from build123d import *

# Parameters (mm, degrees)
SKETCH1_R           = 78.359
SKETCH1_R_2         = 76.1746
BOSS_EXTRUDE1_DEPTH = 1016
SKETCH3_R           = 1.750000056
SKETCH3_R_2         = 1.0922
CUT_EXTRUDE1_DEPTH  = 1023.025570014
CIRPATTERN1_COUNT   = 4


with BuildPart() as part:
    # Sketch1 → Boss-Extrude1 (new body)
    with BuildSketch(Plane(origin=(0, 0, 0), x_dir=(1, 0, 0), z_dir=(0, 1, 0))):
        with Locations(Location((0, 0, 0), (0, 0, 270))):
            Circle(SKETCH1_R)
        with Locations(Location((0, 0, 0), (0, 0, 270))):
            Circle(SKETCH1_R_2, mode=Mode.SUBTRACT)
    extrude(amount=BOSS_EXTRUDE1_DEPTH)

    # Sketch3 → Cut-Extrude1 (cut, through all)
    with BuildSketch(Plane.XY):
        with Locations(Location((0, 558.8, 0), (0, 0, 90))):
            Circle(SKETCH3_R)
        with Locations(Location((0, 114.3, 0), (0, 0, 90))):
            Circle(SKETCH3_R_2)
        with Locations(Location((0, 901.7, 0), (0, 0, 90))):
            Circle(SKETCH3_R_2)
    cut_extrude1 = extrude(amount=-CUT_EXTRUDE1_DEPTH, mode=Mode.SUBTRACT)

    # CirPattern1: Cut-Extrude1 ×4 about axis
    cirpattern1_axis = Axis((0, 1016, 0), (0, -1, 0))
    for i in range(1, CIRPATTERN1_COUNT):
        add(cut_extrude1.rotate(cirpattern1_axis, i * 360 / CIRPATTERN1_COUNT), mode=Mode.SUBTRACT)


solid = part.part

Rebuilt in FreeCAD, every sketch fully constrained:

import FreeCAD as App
import Part
import Sketcher
from FreeCAD import Vector
Q = App.Units.Quantity

doc = App.newDocument("Part")
body = doc.addObject("PartDesign::Body", "Body")

# Sketch on XZ plane
sketch1 = body.newObject("Sketcher::SketchObject", "Sketch")
sketch1.AttachmentSupport = (doc.getObject("XZ_Plane"), [""])
sketch1.MapMode = "FlatFace"
sketch1.addGeometry([
    Part.Circle(Vector(0, 0, 0), Vector(0, 0, 1), 78),
    Part.Circle(Vector(0, 0, 0), Vector(0, 0, 1), 76),
], False)
sketch1.addConstraint([
    Sketcher.Constraint("Coincident", 0, 3, -1, 1),
    Sketcher.Constraint("Coincident", 1, 3, -1, 1),
    Sketcher.Constraint("Diameter", 0, Q("6.17 in")),
    Sketcher.Constraint("Diameter", 1, Q("5.998 in")),
])
pad1 = body.newObject("PartDesign::Pad", "Pad")
pad1.Profile = sketch1
pad1.Length = Q("40 in")
pad1.Reversed = True

# Sketch on XY plane
sketch2 = body.newObject("Sketcher::SketchObject", "Sketch001")
sketch2.AttachmentSupport = (doc.getObject("XY_Plane"), [""])
sketch2.MapMode = "FlatFace"
sketch2.addGeometry([
    Part.Circle(Vector(0, 558.8, 0), Vector(0, 0, 1), 1.8),
    Part.Circle(Vector(0, 114.3, 0), Vector(0, 0, 1), 1.1),
    Part.Circle(Vector(0, 901.7, 0), Vector(0, 0, 1), 1.1),
], False)
sketch2.addConstraint([
    Sketcher.Constraint("Equal", 1, 2),
    Sketcher.Constraint("PointOnObject", 0, 3, -2),
    Sketcher.Constraint("PointOnObject", 1, 3, -2),
    Sketcher.Constraint("PointOnObject", 2, 3, -2),
    Sketcher.Constraint("Diameter", 1, Q("0.086 in")),
    Sketcher.Constraint("DistanceY", -1, 1, 0, 3, Q("22 in")),
    Sketcher.Constraint("DistanceY", 1, 3, 2, 3, Q("31 in")),
    Sketcher.Constraint("DistanceY", -1, 1, 1, 3, Q("4.5 in")),
    Sketcher.Constraint("Diameter", 0, Q("3.5 mm")),
])
pocket1 = body.newObject("PartDesign::Pocket", "Pocket")
pocket1.Profile = sketch2
pocket1.Type = "ThroughAll"
doc.recompute()

polarpattern = body.newObject("PartDesign::PolarPattern", "PolarPattern")
polarpattern.Originals = [pocket1]
polarpattern.Axis = (doc.getObject("Y_Axis"), [""])
polarpattern.Angle = 360
polarpattern.Occurrences = 4
body.Tip = polarpattern

doc.recompute()
